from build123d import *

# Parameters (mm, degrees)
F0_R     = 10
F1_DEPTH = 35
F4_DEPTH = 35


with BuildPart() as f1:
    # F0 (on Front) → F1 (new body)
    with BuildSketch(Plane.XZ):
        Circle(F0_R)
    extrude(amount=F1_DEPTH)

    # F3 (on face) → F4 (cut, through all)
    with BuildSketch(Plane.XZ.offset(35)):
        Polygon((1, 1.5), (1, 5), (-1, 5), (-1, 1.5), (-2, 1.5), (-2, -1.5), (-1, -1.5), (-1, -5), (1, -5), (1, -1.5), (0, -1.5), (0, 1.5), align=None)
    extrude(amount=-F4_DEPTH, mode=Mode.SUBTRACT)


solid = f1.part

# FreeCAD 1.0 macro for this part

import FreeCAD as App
import Part
import Sketcher
from FreeCAD import Vector
Q = App.Units.Quantity


def add_polygon(sketch, points):
    """Adds a closed chain of lines whose ends are joined by coincident constraints."""
    first, n = sketch.GeometryCount, len(points)
    for a, b in zip(points, points[1:] + points[:1]):
        sketch.addGeometry(Part.LineSegment(App.Vector(*a, 0), App.Vector(*b, 0)), False)
    for i in range(n):
        sketch.addConstraint(Sketcher.Constraint("Coincident", first + i, 2, first + (i + 1) % n, 1))

doc = App.newDocument("Part")
body = doc.addObject("PartDesign::Body", "Body")

sketch1 = body.newObject("Sketcher::SketchObject", "Sketch")
sketch1.AttachmentSupport = (doc.getObject("XZ_Plane"), [""])
sketch1.MapMode = "FlatFace"
sketch1.addGeometry(Part.Circle(Vector(0, 0, 0), Vector(0, 0, 1), 10), False)
sketch1.addConstraint(Sketcher.Constraint("Coincident", 0, 3, -1, 1))
sketch1.addConstraint(Sketcher.Constraint("Diameter", 0, Q("20 mm")))
pad1 = body.newObject("PartDesign::Pad", "Pad")
pad1.Profile = sketch1
pad1.Length = 35

sketch2 = body.newObject("Sketcher::SketchObject", "Sketch001")
sketch2.AttachmentSupport = (doc.getObject("XZ_Plane"), [""])
sketch2.MapMode = "FlatFace"
sketch2.AttachmentOffset = App.Placement(Vector(0, 0, 35), App.Rotation())
add_polygon(sketch2, [(1, 1.5), (1, 5), (-1, 5), (-1, 1.5), (-2, 1.5), (-2, -1.5), (-1, -1.5), (-1, -5), (1, -5), (1, -1.5), (0, -1.5), (0, 1.5)])
sketch2.addConstraint(Sketcher.Constraint("Vertical", 0))
sketch2.addConstraint(Sketcher.Constraint("Horizontal", 1))
sketch2.addConstraint(Sketcher.Constraint("Vertical", 2))
sketch2.addConstraint(Sketcher.Constraint("Horizontal", 3))
sketch2.addConstraint(Sketcher.Constraint("Vertical", 4))
sketch2.addConstraint(Sketcher.Constraint("Horizontal", 5))
sketch2.addConstraint(Sketcher.Constraint("Vertical", 6))
sketch2.addConstraint(Sketcher.Constraint("Horizontal", 7))
sketch2.addConstraint(Sketcher.Constraint("Vertical", 8))
sketch2.addConstraint(Sketcher.Constraint("Horizontal", 9))
sketch2.addConstraint(Sketcher.Constraint("Vertical", 10))
sketch2.addConstraint(Sketcher.Constraint("Horizontal", 11))
sketch2.addConstraint(Sketcher.Constraint("Symmetric", 0, 2, 6, 2, -1, 1))
sketch2.addConstraint(Sketcher.Constraint("Symmetric", 2, 2, 8, 2, -1, 1))
sketch2.addConstraint(Sketcher.Constraint("Symmetric", 9, 2, 10, 2, -1, 1))
sketch2.addConstraint(Sketcher.Constraint("Symmetric", 5, 2, 8, 2, -2))
sketch2.addConstraint(Sketcher.Constraint("Equal", 5, 9))
sketch2.addConstraint(Sketcher.Constraint("DistanceX", 1, 2, 1, 1, Q("2 mm")))
sketch2.addConstraint(Sketcher.Constraint("DistanceY", 4, 2, 4, 1, Q("3 mm")))
sketch2.addConstraint(Sketcher.Constraint("DistanceY", 0, 1, 0, 2, Q("3.5 mm")))
pocket1 = body.newObject("PartDesign::Pocket", "Pocket")
pocket1.Profile = sketch2
pocket1.Type = "ThroughAll"

doc.recompute()
